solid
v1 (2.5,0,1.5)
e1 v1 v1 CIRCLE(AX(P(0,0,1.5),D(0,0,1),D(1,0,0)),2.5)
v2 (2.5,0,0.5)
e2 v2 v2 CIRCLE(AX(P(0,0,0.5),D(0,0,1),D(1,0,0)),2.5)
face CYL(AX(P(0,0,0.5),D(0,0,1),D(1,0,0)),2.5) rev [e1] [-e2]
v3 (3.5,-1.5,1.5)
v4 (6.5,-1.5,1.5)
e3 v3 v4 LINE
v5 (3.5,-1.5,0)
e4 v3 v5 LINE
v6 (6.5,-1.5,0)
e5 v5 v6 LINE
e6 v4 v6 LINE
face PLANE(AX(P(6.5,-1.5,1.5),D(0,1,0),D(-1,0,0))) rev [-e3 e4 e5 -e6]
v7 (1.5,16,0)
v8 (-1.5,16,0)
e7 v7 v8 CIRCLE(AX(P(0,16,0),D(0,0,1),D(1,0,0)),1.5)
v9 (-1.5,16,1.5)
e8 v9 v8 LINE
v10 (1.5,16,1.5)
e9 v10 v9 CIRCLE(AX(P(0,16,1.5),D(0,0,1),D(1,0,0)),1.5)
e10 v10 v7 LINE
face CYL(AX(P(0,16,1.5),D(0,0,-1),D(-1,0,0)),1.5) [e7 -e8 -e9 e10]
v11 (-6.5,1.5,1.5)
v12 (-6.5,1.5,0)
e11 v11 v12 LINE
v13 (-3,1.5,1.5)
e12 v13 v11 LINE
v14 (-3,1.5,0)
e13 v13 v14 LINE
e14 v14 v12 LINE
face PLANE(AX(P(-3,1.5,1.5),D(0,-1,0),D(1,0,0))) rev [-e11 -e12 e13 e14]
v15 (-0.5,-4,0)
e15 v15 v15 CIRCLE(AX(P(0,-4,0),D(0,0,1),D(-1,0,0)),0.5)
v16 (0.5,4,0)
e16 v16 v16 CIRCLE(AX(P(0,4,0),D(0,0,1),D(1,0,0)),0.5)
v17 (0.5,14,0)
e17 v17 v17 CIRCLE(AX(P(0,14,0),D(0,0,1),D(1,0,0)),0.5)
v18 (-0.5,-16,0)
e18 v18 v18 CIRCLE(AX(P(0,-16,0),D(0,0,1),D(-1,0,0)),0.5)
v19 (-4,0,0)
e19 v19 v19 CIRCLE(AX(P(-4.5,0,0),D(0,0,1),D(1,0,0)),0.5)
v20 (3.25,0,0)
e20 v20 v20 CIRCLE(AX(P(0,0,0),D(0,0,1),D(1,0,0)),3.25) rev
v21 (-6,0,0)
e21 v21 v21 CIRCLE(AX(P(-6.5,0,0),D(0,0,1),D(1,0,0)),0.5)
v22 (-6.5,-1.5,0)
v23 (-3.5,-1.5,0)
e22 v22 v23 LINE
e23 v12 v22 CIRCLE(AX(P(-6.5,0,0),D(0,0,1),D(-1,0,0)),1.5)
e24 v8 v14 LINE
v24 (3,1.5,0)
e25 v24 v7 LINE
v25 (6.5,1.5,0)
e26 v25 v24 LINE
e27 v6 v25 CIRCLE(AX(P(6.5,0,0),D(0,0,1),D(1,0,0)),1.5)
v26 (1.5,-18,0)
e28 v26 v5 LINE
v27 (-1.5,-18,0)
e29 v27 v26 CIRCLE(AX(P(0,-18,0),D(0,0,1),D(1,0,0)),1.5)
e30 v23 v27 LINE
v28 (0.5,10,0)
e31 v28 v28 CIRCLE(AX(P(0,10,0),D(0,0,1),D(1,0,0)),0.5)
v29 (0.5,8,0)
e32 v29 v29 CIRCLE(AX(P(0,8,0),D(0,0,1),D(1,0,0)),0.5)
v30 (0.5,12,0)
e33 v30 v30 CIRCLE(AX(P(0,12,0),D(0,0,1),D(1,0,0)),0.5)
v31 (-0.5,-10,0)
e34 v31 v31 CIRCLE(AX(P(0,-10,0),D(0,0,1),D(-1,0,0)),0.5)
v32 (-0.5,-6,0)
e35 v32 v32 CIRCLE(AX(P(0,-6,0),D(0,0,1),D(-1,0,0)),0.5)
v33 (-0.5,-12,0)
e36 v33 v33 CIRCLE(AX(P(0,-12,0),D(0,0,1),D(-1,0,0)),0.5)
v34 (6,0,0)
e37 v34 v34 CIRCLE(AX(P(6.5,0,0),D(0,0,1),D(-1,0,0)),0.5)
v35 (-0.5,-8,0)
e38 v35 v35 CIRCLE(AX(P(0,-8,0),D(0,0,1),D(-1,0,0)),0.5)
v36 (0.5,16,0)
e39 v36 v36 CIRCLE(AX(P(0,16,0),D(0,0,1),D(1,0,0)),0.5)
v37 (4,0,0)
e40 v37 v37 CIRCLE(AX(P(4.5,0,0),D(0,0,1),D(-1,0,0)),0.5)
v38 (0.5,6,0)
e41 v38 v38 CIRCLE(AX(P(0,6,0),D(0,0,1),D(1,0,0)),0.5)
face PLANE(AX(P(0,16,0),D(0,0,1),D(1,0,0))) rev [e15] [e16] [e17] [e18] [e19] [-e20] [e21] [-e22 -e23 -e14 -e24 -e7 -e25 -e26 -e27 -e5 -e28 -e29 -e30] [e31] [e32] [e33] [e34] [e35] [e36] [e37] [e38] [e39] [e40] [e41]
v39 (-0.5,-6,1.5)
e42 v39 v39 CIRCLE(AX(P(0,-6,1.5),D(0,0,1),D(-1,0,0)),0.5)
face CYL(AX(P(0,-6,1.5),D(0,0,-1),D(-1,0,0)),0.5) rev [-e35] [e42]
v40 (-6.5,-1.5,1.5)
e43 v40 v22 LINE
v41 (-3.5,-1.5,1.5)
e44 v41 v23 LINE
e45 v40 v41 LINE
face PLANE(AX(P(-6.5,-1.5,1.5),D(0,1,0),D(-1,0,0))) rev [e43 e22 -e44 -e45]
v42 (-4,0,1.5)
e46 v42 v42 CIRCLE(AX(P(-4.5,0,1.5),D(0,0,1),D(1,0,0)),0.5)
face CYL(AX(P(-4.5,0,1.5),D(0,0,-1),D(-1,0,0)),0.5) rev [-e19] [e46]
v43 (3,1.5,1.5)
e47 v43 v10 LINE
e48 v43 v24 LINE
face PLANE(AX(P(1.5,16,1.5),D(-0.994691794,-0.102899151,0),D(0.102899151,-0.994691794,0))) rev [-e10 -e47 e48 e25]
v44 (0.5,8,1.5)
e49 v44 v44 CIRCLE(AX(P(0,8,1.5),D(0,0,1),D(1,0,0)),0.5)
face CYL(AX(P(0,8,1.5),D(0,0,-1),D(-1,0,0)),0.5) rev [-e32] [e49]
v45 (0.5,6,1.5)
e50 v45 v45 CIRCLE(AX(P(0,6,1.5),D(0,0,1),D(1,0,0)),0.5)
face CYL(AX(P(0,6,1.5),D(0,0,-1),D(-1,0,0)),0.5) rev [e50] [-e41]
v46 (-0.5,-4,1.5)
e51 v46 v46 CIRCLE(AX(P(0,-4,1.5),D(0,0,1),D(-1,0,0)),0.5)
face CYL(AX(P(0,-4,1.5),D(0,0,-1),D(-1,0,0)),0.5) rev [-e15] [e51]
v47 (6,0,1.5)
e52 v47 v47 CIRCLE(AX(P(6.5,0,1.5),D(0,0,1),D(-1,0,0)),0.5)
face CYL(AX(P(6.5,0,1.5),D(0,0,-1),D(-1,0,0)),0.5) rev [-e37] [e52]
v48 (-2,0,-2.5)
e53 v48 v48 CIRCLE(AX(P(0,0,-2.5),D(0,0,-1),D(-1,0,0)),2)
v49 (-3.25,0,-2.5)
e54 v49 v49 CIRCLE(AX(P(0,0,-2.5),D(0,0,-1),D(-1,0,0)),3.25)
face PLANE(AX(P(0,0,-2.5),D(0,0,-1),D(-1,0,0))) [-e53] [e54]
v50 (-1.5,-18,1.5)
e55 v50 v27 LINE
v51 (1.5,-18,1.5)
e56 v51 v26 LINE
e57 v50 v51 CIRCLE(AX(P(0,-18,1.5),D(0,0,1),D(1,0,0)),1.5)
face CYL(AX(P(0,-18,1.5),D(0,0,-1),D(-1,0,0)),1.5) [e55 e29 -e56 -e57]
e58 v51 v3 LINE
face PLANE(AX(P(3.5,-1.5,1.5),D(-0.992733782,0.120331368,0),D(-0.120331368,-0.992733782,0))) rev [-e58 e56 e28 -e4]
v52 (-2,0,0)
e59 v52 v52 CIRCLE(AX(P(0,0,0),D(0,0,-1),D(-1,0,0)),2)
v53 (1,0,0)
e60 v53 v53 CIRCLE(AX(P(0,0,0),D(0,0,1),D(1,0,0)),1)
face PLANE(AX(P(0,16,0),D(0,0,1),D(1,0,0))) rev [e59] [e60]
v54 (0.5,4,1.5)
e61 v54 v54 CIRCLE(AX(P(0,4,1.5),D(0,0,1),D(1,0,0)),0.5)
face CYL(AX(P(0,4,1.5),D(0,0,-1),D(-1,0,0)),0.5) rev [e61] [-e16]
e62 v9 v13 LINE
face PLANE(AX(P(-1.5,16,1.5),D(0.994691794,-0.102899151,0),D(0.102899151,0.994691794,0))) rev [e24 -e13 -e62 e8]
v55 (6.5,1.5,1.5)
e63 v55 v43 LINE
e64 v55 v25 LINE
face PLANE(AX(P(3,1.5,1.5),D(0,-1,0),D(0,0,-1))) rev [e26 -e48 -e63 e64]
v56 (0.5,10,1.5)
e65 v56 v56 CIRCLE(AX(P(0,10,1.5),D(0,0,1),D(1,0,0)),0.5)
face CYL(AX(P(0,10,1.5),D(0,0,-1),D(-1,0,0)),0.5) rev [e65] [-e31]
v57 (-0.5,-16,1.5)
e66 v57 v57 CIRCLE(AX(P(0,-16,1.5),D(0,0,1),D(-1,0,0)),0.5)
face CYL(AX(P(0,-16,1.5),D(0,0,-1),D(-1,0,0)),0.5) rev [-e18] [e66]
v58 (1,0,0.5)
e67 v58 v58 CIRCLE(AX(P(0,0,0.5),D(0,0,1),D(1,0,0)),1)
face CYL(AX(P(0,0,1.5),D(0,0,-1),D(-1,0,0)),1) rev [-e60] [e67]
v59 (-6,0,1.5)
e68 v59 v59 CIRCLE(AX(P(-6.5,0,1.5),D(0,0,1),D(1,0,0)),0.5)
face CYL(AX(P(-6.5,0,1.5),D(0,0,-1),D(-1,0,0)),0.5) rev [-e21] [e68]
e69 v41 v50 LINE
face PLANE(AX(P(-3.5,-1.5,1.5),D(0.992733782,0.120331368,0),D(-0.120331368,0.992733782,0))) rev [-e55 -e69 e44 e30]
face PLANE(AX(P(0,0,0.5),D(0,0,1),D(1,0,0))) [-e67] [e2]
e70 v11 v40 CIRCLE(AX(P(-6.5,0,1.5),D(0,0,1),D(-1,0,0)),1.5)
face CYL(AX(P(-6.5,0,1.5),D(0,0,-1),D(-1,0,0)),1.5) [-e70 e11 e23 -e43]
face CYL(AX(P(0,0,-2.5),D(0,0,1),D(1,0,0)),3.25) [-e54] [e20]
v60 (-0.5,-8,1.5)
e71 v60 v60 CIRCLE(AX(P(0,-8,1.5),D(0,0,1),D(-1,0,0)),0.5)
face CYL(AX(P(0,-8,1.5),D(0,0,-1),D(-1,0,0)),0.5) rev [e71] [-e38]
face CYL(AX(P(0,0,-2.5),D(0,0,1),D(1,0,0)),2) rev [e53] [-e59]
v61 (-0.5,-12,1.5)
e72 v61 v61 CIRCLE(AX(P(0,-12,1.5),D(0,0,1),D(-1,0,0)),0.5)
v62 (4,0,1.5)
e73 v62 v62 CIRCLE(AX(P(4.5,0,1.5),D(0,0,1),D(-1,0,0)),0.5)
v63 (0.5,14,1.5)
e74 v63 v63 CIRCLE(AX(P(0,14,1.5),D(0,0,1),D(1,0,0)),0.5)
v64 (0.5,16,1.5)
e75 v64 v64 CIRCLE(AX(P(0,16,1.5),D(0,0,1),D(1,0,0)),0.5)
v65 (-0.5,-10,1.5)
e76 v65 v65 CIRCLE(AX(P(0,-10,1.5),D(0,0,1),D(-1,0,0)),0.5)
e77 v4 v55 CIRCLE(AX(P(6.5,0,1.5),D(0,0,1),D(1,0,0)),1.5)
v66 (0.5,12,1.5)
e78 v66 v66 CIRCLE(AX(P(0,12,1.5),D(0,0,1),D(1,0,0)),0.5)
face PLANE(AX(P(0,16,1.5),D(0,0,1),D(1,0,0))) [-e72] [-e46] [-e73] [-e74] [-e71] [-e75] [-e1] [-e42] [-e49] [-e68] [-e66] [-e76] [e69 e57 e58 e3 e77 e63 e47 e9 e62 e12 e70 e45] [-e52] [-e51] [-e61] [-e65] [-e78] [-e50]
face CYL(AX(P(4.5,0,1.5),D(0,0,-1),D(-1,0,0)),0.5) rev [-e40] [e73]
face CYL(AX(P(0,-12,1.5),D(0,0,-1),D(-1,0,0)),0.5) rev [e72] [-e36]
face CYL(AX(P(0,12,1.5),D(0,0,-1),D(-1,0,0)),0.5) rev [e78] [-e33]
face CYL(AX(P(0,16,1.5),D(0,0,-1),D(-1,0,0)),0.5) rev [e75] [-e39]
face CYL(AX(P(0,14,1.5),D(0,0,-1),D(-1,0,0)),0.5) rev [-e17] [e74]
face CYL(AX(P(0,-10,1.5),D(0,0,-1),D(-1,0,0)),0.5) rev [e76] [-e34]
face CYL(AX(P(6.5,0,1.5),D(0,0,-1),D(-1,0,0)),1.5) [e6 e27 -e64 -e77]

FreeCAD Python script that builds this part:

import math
import FreeCAD as App
import Part
import Sketcher

V = App.Vector
Q = App.Units.Quantity

doc = App.newDocument("Part")
params = doc.addObject("Spreadsheet::Sheet", "Params")
for row, (alias, value) in enumerate([
    ("sketch1_diameter", "1 mm"),
    ("sketch1_diameter2", "2 mm"),
    ("sketch1_radius", "1.5 mm"),
    ("sketch1_width", "3 mm"),
    ("sketch1_width2", "3.5 mm"),
    ("pad1_length", "1.5 mm"),
    ("sketch2_diameter", "4 mm"),
    ("sketch2_diameter2", "6.5 mm"),
    ("pad2_length", "2.5 mm"),
    ("sketch3_diameter", "5 mm"),
    ("pocket1_length", "1 mm"),
], start=1):
    params.set(f"A{row}", alias)
    params.set(f"B{row}", "=" + value)
    params.setAlias(f"B{row}", alias)

body = doc.addObject("PartDesign::Body", "Body")

# Sketch on XY plane
sketch1 = body.newObject("Sketcher::SketchObject", "Sketch")
sketch1.AttachmentSupport = (doc.getObject("XY_Plane"), [""])
sketch1.MapMode = "FlatFace"
sketch1.addGeometry([
    Part.LineSegment(V(3, 1.5, 0), V(1.5, 16, 0)),  # 0
    Part.ArcOfCircle(Part.Circle(V(0, 16, 0), V(0, 0, 1), 1.5), math.radians(0), math.radians(180)),  # 1
    Part.LineSegment(V(-1.5, 16, 0), V(-3, 1.5, 0)),  # 2
    Part.LineSegment(V(-3, 1.5, 0), V(-6.5, 1.5, 0)),  # 3
    Part.ArcOfCircle(Part.Circle(V(-6.5, 0, 0), V(0, 0, 1), 1.5), math.radians(90), math.radians(270)),  # 4
    Part.LineSegment(V(-6.5, -1.5, 0), V(-3.5, -1.5, 0)),  # 5
    Part.LineSegment(V(-3.5, -1.5, 0), V(-1.5, -18, 0)),  # 6
    Part.ArcOfCircle(Part.Circle(V(0, -18, 0), V(0, 0, 1), 1.5), math.radians(180), math.radians(360)),  # 7
    Part.LineSegment(V(1.5, -18, 0), V(3.5, -1.5, 0)),  # 8
    Part.LineSegment(V(3.5, -1.5, 0), V(6.5, -1.5, 0)),  # 9
    Part.ArcOfCircle(Part.Circle(V(6.5, 0, 0), V(0, 0, 1), 1.5), math.radians(-90), math.radians(90)),  # 10
    Part.LineSegment(V(6.5, 1.5, 0), V(3, 1.5, 0)),  # 11
    Part.Circle(V(0, -16, 0), V(0, 0, 1), 0.5),  # 12
    Part.Circle(V(0, -12, 0), V(0, 0, 1), 0.5),  # 13
    Part.Circle(V(0, -10, 0), V(0, 0, 1), 0.5),  # 14
    Part.Circle(V(0, -8, 0), V(0, 0, 1), 0.5),  # 15
    Part.Circle(V(0, -6, 0), V(0, 0, 1), 0.5),  # 16
    Part.Circle(V(0, -4, 0), V(0, 0, 1), 0.5),  # 17
    Part.Circle(V(6.5, 0, 0), V(0, 0, 1), 0.5),  # 18
    Part.Circle(V(4.5, 0, 0), V(0, 0, 1), 0.5),  # 19
    Part.Circle(V(0, 0, 0), V(0, 0, 1), 1),  # 20
    Part.Circle(V(0, 4, 0), V(0, 0, 1), 0.5),  # 21
    Part.Circle(V(0, 6, 0), V(0, 0, 1), 0.5),  # 22
    Part.Circle(V(0, 8, 0), V(0, 0, 1), 0.5),  # 23
    Part.Circle(V(-4.5, 0, 0), V(0, 0, 1), 0.5),  # 24
    Part.Circle(V(-6.5, 0, 0), V(0, 0, 1), 0.5),  # 25
    Part.Circle(V(0, 10, 0), V(0, 0, 1), 0.5),  # 26
    Part.Circle(V(0, 12, 0), V(0, 0, 1), 0.5),  # 27
    Part.Circle(V(0, 14, 0), V(0, 0, 1), 0.5),  # 28
    Part.Circle(V(0, 16, 0), V(0, 0, 1), 0.5),  # 29
], False)
sketch1.addConstraint([
    Sketcher.Constraint("Coincident", 0, 2, 1, 1),
    Sketcher.Constraint("Coincident", 1, 2, 2, 1),
    Sketcher.Constraint("Coincident", 2, 2, 3, 1),
    Sketcher.Constraint("Tangent", 3, 2, 4, 1),
    Sketcher.Constraint("Tangent", 4, 2, 5, 1),
    Sketcher.Constraint("Coincident", 5, 2, 6, 1),
    Sketcher.Constraint("Coincident", 6, 2, 7, 1),
    Sketcher.Constraint("Coincident", 7, 2, 8, 1),
    Sketcher.Constraint("Coincident", 8, 2, 9, 1),
    Sketcher.Constraint("Tangent", 9, 2, 10, 1),
    Sketcher.Constraint("Tangent", 10, 2, 11, 1),
    Sketcher.Constraint("Coincident", 11, 2, 0, 1),
    Sketcher.Constraint("Horizontal", 3),
    Sketcher.Constraint("Horizontal", 5),
    Sketcher.Constraint("Horizontal", 9),
    Sketcher.Constraint("Horizontal", 11),
    Sketcher.Constraint("Coincident", 20, 3, -1, 1),
    Sketcher.Constraint("Coincident", 18, 3, 10, 3),
    Sketcher.Constraint("Coincident", 25, 3, 4, 3),
    Sketcher.Constraint("Coincident", 29, 3, 1, 3),
    Sketcher.Constraint("Equal", 1, 4),
    Sketcher.Constraint("Equal", 4, 7),
    Sketcher.Constraint("Equal", 7, 10),
    Sketcher.Constraint("Equal", 12, 13),
    Sketcher.Constraint("Equal", 13, 14),
    Sketcher.Constraint("Equal", 14, 15),
    Sketcher.Constraint("Equal", 15, 16),
    Sketcher.Constraint("Equal", 16, 17),
    Sketcher.Constraint("Equal", 17, 18),
    Sketcher.Constraint("Equal", 18, 19),
    Sketcher.Constraint("Equal", 19, 21),
    Sketcher.Constraint("Equal", 21, 22),
    Sketcher.Constraint("Equal", 22, 23),
    Sketcher.Constraint("Equal", 23, 24),
    Sketcher.Constraint("Equal", 24, 25),
    Sketcher.Constraint("Equal", 25, 26),
    Sketcher.Constraint("Equal", 26, 27),
    Sketcher.Constraint("Equal", 27, 28),
    Sketcher.Constraint("Equal", 28, 29),
    Sketcher.Constraint("Symmetric", 4, 3, 10, 3, -1, 1),
    Sketcher.Constraint("Symmetric", 1, 3, 12, 3, -1, 1),
    Sketcher.Constraint("Symmetric", 17, 3, 21, 3, -1, 1),
    Sketcher.Constraint("Symmetric", 16, 3, 22, 3, -1, 1),
    Sketcher.Constraint("Symmetric", 15, 3, 23, 3, -1, 1),
    Sketcher.Constraint("Symmetric", 19, 3, 24, 3, -1, 1),
    Sketcher.Constraint("Symmetric", 14, 3, 26, 3, -1, 1),
    Sketcher.Constraint("Symmetric", 13, 3, 27, 3, -1, 1),
    Sketcher.Constraint("Symmetric", 0, 2, 1, 2, -2),
    Sketcher.Constraint("Symmetric", 6, 2, 7, 2, -2),
    Sketcher.Constraint("Symmetric", 5, 2, 8, 2, -2),
    Sketcher.Constraint("PointOnObject", 13, 3, -2),
    Sketcher.Constraint("PointOnObject", 14, 3, -2),
    Sketcher.Constraint("PointOnObject", 15, 3, -2),
    Sketcher.Constraint("PointOnObject", 16, 3, -2),
    Sketcher.Constraint("PointOnObject", 17, 3, -2),
    Sketcher.Constraint("PointOnObject", 19, 3, -1),
    Sketcher.Constraint("PointOnObject", 28, 3, -2),
    Sketcher.Constraint("Horizontal", 29, 3, 0, 2),
    Sketcher.Constraint("Horizontal", 7, 3, 6, 2),
    Sketcher.Constraint("Equal", 3, 11),
    Sketcher.Constraint("Diameter", 12, Q("1 mm")),
    Sketcher.Constraint("Diameter", 20, Q("2 mm")),
    Sketcher.Constraint("Radius", 1, Q("1.5 mm")),
    Sketcher.Constraint("DistanceX", 5, 1, 5, 2, Q("3 mm")),
    Sketcher.Constraint("DistanceX", 3, 2, 3, 1, Q("3.5 mm")),
    Sketcher.Constraint("DistanceY", -1, 1, 1, 3, Q("16 mm")),
    Sketcher.Constraint("DistanceY", 7, 3, -1, 1, Q("18 mm")),
    Sketcher.Constraint("DistanceY", 13, 3, -1, 1, Q("12 mm")),
    Sketcher.Constraint("DistanceY", 14, 3, -1, 1, Q("10 mm")),
    Sketcher.Constraint("DistanceY", 15, 3, -1, 1, Q("8 mm")),
    Sketcher.Constraint("DistanceY", 16, 3, -1, 1, Q("6 mm")),
    Sketcher.Constraint("DistanceY", 17, 3, -1, 1, Q("4 mm")),
    Sketcher.Constraint("DistanceY", -1, 1, 28, 3, Q("14 mm")),
    Sketcher.Constraint("DistanceX", 2, 2, -1, 1, Q("3 mm")),
    Sketcher.Constraint("DistanceX", 19, 3, 10, 3, Q("2 mm")),
])
sketch1.setExpression("Constraints[60]", "Params.sketch1_diameter")
sketch1.setExpression("Constraints[61]", "Params.sketch1_diameter2")
sketch1.setExpression("Constraints[62]", "Params.sketch1_radius")
sketch1.setExpression("Constraints[63]", "Params.sketch1_width")
sketch1.setExpression("Constraints[64]", "Params.sketch1_width2")
pad1 = body.newObject("PartDesign::Pad", "Pad")
pad1.Profile = sketch1
pad1.setExpression("Length", "Params.pad1_length")

# Sketch on XY plane
sketch2 = body.newObject("Sketcher::SketchObject", "Sketch001")
sketch2.AttachmentSupport = (doc.getObject("XY_Plane"), [""])
sketch2.MapMode = "FlatFace"
sketch2.addGeometry([
    Part.Circle(V(0, 0, 0), V(0, 0, 1), 3.25),
    Part.Circle(V(0, 0, 0), V(0, 0, 1), 2),
], False)
sketch2.addConstraint([
    Sketcher.Constraint("Coincident", 0, 3, -1, 1),
    Sketcher.Constraint("Coincident", 1, 3, -1, 1),
    Sketcher.Constraint("Diameter", 1, Q("4 mm")),
    Sketcher.Constraint("Diameter", 0, Q("6.5 mm")),
])
sketch2.setExpression("Constraints[2]", "Params.sketch2_diameter")
sketch2.setExpression("Constraints[3]", "Params.sketch2_diameter2")
pad2 = body.newObject("PartDesign::Pad", "Pad001")
pad2.Profile = sketch2
pad2.setExpression("Length", "Params.pad2_length")
pad2.Reversed = True

# Sketch on XY plane
sketch3 = body.newObject("Sketcher::SketchObject", "Sketch002")
sketch3.AttachmentSupport = (doc.getObject("XY_Plane"), [""])
sketch3.MapMode = "FlatFace"
sketch3.AttachmentOffset = App.Placement(V(0, 0, 1.5), App.Rotation())
sketch3.addGeometry(Part.Circle(V(0, 0, 0), V(0, 0, 1), 2.5), False)
sketch3.addConstraint([
    Sketcher.Constraint("Coincident", 0, 3, -1, 1),
    Sketcher.Constraint("Diameter", 0, Q("5 mm")),
])
sketch3.setExpression("Constraints[1]", "Params.sketch3_diameter")
pocket1 = body.newObject("PartDesign::Pocket", "Pocket")
pocket1.Profile = sketch3
pocket1.setExpression("Length", "Params.pocket1_length")

doc.recompute()
